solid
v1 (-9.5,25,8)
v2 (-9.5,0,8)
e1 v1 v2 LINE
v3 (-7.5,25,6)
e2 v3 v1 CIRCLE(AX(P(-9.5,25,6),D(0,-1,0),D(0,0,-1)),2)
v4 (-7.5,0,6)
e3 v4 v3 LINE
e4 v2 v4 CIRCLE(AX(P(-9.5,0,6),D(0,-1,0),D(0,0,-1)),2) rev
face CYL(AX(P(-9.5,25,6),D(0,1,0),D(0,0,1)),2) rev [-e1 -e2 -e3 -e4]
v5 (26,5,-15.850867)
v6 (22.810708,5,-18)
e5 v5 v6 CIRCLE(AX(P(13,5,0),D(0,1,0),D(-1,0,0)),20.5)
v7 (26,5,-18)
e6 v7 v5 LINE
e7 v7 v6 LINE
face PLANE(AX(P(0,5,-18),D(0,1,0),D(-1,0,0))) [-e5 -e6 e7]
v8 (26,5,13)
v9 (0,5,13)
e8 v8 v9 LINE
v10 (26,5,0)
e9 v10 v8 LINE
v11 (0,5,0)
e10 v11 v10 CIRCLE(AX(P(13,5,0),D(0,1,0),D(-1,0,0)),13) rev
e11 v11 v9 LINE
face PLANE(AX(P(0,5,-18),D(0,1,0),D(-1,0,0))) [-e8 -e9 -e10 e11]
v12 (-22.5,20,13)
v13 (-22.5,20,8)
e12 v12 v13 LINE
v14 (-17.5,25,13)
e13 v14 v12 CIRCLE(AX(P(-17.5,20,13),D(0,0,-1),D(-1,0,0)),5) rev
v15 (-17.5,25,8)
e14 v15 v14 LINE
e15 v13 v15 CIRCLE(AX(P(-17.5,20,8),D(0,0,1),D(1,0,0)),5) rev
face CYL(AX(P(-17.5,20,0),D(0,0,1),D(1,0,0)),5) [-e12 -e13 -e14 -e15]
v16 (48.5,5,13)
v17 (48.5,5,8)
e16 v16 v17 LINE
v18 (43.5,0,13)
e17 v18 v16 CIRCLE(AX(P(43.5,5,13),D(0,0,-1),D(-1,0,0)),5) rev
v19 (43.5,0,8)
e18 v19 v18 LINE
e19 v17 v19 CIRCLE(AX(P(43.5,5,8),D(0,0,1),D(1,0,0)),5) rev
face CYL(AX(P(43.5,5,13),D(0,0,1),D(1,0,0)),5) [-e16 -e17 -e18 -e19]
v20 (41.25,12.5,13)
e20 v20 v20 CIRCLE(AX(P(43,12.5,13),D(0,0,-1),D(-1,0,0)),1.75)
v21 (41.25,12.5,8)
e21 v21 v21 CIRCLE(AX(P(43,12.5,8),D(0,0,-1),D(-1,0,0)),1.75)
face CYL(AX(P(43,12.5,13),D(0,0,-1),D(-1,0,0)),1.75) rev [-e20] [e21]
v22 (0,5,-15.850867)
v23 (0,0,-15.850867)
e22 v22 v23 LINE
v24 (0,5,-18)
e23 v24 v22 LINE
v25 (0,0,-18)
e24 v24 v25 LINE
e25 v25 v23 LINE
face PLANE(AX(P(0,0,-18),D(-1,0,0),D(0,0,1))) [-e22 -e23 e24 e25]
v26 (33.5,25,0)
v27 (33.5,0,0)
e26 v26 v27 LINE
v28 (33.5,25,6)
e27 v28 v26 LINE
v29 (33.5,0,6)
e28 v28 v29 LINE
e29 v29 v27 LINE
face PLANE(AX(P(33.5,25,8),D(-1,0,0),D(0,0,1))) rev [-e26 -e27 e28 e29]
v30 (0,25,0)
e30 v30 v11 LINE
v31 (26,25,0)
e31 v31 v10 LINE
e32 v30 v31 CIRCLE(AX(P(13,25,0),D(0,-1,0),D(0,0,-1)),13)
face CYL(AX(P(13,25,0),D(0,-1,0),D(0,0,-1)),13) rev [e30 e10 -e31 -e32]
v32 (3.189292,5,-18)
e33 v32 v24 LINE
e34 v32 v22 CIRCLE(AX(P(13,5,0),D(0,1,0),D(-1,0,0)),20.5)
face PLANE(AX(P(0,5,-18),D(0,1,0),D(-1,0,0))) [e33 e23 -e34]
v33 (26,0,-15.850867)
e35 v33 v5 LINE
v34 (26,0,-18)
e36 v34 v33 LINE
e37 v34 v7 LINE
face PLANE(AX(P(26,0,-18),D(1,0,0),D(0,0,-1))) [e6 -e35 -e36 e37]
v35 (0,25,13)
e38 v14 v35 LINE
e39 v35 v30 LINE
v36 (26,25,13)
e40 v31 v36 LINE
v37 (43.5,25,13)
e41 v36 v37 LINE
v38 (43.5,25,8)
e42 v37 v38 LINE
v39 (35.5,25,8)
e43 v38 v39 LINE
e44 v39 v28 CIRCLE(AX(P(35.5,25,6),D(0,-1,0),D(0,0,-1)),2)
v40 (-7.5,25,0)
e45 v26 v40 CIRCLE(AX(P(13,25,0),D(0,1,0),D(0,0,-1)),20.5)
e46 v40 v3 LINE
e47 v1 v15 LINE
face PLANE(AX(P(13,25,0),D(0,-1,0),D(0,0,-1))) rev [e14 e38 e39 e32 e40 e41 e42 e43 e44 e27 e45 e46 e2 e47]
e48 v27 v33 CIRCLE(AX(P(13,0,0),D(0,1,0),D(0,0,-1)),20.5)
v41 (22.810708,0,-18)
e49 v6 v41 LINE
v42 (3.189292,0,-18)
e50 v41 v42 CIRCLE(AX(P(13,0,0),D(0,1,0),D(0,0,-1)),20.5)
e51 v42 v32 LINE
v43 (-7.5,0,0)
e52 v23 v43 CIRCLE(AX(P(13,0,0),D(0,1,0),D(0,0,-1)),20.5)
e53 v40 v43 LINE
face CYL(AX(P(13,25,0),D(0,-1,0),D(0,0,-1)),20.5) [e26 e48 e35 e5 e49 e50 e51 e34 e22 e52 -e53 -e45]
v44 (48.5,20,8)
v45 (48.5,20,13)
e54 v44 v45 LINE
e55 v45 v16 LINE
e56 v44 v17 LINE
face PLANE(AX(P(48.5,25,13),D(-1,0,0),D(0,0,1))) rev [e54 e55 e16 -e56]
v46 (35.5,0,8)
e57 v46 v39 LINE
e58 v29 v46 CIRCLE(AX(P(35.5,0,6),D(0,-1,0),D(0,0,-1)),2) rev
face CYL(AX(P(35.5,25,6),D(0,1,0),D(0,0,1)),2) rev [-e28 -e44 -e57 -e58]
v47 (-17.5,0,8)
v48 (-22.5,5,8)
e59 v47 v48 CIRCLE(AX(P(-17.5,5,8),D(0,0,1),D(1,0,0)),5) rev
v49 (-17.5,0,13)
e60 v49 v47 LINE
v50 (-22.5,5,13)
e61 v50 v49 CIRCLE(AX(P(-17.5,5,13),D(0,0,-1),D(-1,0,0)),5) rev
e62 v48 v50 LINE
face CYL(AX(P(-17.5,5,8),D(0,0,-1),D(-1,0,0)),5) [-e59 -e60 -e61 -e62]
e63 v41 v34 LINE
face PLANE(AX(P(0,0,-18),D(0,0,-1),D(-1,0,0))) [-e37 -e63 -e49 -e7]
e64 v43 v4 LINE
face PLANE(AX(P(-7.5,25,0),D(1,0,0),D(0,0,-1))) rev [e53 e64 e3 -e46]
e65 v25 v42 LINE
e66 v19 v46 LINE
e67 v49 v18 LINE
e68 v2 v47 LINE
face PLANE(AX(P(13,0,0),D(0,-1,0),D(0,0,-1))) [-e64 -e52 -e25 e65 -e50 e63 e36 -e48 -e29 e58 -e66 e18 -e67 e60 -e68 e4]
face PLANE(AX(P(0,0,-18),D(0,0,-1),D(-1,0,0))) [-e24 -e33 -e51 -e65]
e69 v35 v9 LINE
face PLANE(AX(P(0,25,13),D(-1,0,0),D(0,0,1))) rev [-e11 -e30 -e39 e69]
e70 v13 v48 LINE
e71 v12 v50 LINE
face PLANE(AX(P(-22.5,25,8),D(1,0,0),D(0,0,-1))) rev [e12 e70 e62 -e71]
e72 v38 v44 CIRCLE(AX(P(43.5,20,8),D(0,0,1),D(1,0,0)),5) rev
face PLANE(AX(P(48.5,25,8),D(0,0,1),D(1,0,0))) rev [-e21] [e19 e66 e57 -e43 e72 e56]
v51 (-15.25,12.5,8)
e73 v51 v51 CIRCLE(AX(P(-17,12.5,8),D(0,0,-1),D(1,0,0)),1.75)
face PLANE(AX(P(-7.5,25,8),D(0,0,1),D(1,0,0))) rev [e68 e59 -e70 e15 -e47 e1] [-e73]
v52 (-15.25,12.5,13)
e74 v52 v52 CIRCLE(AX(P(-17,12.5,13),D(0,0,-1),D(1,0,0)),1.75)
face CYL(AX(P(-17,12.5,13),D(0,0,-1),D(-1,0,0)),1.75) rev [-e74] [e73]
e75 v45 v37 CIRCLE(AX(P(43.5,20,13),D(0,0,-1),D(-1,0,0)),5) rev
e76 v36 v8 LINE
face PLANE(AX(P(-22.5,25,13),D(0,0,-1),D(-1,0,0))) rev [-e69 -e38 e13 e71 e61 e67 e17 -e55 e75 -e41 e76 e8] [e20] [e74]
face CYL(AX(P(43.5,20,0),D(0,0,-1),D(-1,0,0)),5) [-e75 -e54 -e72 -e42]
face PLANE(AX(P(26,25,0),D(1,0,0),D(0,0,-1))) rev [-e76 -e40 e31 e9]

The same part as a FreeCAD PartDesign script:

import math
import FreeCAD as App
import Part
import Sketcher


def edges_at(feature, points):
    """Names of the edges that pass closest to the given points."""
    edges = feature.Shape.Edges
    near = lambda p: min(range(len(edges)), key=lambda i: edges[i].distToShape(Part.Vertex(*p))[0])
    return sorted({f"Edge{near(p) + 1}" for p in points})

doc = App.newDocument("Part")
body = doc.addObject("PartDesign::Body", "Body")

# Sketch on XZ plane
sketch1 = body.newObject("Sketcher::SketchObject", "Sketch")
sketch1.AttachmentSupport = (doc.getObject("XZ_Plane"), [""])
sketch1.MapMode = "FlatFace"
sketch1.addGeometry([
    Part.LineSegment(App.Vector(-7.5, 0, 0), App.Vector(-7.5, 8, 0)),  # 0
    Part.LineSegment(App.Vector(-7.5, 8, 0), App.Vector(-22.5, 8, 0)),  # 1
    Part.LineSegment(App.Vector(-22.5, 8, 0), App.Vector(-22.5, 13, 0)),  # 2
    Part.LineSegment(App.Vector(-22.5, 13, 0), App.Vector(0, 13, 0)),  # 3
    Part.LineSegment(App.Vector(0, 13, 0), App.Vector(0, 0, 0)),  # 4
    Part.ArcOfCircle(Part.Circle(App.Vector(13, 0, 0), App.Vector(0, 0, 1), 13), math.radians(180), math.radians(360)),  # 5
    Part.LineSegment(App.Vector(26, 0, 0), App.Vector(26, 13, 0)),  # 6
    Part.LineSegment(App.Vector(26, 13, 0), App.Vector(48.5, 13, 0)),  # 7
    Part.LineSegment(App.Vector(48.5, 13, 0), App.Vector(48.5, 8, 0)),  # 8
    Part.LineSegment(App.Vector(48.5, 8, 0), App.Vector(33.5, 8, 0)),  # 9
    Part.LineSegment(App.Vector(33.5, 8, 0), App.Vector(33.5, 0, 0)),  # 10
    Part.ArcOfCircle(Part.Circle(App.Vector(13, 0, 0), App.Vector(0, 0, 1), 20.5), math.radians(180), math.radians(360)),  # 11
], False)
sketch1.addConstraint([
    Sketcher.Constraint("Coincident", 0, 2, 1, 1),
    Sketcher.Constraint("Coincident", 1, 2, 2, 1),
    Sketcher.Constraint("Coincident", 2, 2, 3, 1),
    Sketcher.Constraint("Coincident", 3, 2, 4, 1),
    Sketcher.Constraint("Tangent", 4, 2, 5, 1),
    Sketcher.Constraint("Tangent", 5, 2, 6, 1),
    Sketcher.Constraint("Coincident", 6, 2, 7, 1),
    Sketcher.Constraint("Coincident", 7, 2, 8, 1),
    Sketcher.Constraint("Coincident", 8, 2, 9, 1),
    Sketcher.Constraint("Coincident", 9, 2, 10, 1),
    Sketcher.Constraint("Tangent", 10, 2, 11, 2),
    Sketcher.Constraint("Tangent", 11, 1, 0, 1),
    Sketcher.Constraint("Vertical", 0),
    Sketcher.Constraint("Horizontal", 1),
    Sketcher.Constraint("Vertical", 2),
    Sketcher.Constraint("Horizontal", 3),
    Sketcher.Constraint("Vertical", 4),
    Sketcher.Constraint("Vertical", 6),
    Sketcher.Constraint("Horizontal", 7),
    Sketcher.Constraint("Vertical", 8),
    Sketcher.Constraint("Horizontal", 9),
    Sketcher.Constraint("Vertical", 10),
    Sketcher.Constraint("Coincident", 4, 2, -1, 1),
    Sketcher.Constraint("Coincident", 11, 3, 5, 3),
    Sketcher.Constraint("Horizontal", 3, 2, 6, 2),
    Sketcher.Constraint("Horizontal", 1, 2, 8, 2),
    Sketcher.Constraint("Equal", 3, 7),
    Sketcher.Constraint("Radius", 5, 13.0),
    Sketcher.Constraint("Radius", 11, 20.5),
    Sketcher.Constraint("DistanceX", 1, 2, 1, 1, 15.0),
    Sketcher.Constraint("DistanceY", 0, 1, 0, 2, 8.0),
    Sketcher.Constraint("DistanceY", 2, 1, 2, 2, 5.0),
])
pad1 = body.newObject("PartDesign::Pad", "Pad")
pad1.Profile = sketch1
pad1.Length = 25
pad1.Reversed = True

# Sketch on XY plane
sketch2 = body.newObject("Sketcher::SketchObject", "Sketch001")
sketch2.AttachmentSupport = (doc.getObject("XY_Plane"), [""])
sketch2.MapMode = "FlatFace"
sketch2.AttachmentOffset = App.Placement(App.Vector(0, 0, 8), App.Rotation())
sketch2.addGeometry([
    Part.Circle(App.Vector(43, 12.5, 0), App.Vector(0, 0, 1), 1.75),
    Part.Circle(App.Vector(-17, 12.5, 0), App.Vector(0, 0, 1), 1.75),
], False)
sketch2.addConstraint([
    Sketcher.Constraint("Equal", 0, 1),
    Sketcher.Constraint("Horizontal", 0, 3, 1, 3),
    Sketcher.Constraint("Diameter", 0, 3.5),
    Sketcher.Constraint("DistanceX", -1, 1, 0, 3, 43.0),
    Sketcher.Constraint("DistanceX", 1, 3, -1, 1, 17.0),
    Sketcher.Constraint("DistanceY", -1, 1, 0, 3, 12.5),
])
pocket1 = body.newObject("PartDesign::Pocket", "Pocket")
pocket1.Profile = sketch2
pocket1.Type = "ThroughAll"
pocket1.Reversed = True
doc.recompute()

fillet = body.newObject("PartDesign::Fillet", "Fillet")
fillet.Base = (pocket1, edges_at(pocket1, [
    (-22.5, 0, 10.5),
    (48.5, 0, 10.5),
    (48.5, 25, 10.5),
    (-22.5, 25, 10.5),
]))
fillet.Radius = 5
doc.recompute()

fillet2 = body.newObject("PartDesign::Fillet", "Fillet001")
fillet2.Base = (fillet, edges_at(fillet, [(-7.5, 12.5, 8), (33.5, 12.5, 8)]))
fillet2.Radius = 2

# Sketch on XY plane
sketch3 = body.newObject("Sketcher::SketchObject", "Sketch002")
sketch3.AttachmentSupport = (doc.getObject("XY_Plane"), [""])
sketch3.MapMode = "FlatFace"
sketch3.AttachmentOffset = App.Placement(App.Vector(0, 0, 13), App.Rotation())
sketch3.addGeometry([
    Part.LineSegment(App.Vector(0, 5, 0), App.Vector(0, 0, 0)),
    Part.LineSegment(App.Vector(0, 0, 0), App.Vector(26, 0, 0)),
    Part.LineSegment(App.Vector(26, 0, 0), App.Vector(26, 5, 0)),
    Part.LineSegment(App.Vector(26, 5, 0), App.Vector(0, 5, 0)),
], False)
sketch3.addConstraint([
    Sketcher.Constraint("Coincident", 0, 2, 1, 1),
    Sketcher.Constraint("Coincident", 1, 2, 2, 1),
    Sketcher.Constraint("Coincident", 2, 2, 3, 1),
    Sketcher.Constraint("Coincident", 3, 2, 0, 1),
    Sketcher.Constraint("Vertical", 0),
    Sketcher.Constraint("Horizontal", 1),
    Sketcher.Constraint("Vertical", 2),
    Sketcher.Constraint("Horizontal", 3),
    Sketcher.Constraint("Coincident", 0, 2, -1, 1),
    Sketcher.Constraint("DistanceX", 1, 1, 1, 2, 26.0),
    Sketcher.Constraint("DistanceY", 0, 2, 0, 1, 5.0),
])
pad2 = body.newObject("PartDesign::Pad", "Pad001")
pad2.Profile = sketch3
pad2.Length = 31
pad2.Reversed = True

doc.recompute()
